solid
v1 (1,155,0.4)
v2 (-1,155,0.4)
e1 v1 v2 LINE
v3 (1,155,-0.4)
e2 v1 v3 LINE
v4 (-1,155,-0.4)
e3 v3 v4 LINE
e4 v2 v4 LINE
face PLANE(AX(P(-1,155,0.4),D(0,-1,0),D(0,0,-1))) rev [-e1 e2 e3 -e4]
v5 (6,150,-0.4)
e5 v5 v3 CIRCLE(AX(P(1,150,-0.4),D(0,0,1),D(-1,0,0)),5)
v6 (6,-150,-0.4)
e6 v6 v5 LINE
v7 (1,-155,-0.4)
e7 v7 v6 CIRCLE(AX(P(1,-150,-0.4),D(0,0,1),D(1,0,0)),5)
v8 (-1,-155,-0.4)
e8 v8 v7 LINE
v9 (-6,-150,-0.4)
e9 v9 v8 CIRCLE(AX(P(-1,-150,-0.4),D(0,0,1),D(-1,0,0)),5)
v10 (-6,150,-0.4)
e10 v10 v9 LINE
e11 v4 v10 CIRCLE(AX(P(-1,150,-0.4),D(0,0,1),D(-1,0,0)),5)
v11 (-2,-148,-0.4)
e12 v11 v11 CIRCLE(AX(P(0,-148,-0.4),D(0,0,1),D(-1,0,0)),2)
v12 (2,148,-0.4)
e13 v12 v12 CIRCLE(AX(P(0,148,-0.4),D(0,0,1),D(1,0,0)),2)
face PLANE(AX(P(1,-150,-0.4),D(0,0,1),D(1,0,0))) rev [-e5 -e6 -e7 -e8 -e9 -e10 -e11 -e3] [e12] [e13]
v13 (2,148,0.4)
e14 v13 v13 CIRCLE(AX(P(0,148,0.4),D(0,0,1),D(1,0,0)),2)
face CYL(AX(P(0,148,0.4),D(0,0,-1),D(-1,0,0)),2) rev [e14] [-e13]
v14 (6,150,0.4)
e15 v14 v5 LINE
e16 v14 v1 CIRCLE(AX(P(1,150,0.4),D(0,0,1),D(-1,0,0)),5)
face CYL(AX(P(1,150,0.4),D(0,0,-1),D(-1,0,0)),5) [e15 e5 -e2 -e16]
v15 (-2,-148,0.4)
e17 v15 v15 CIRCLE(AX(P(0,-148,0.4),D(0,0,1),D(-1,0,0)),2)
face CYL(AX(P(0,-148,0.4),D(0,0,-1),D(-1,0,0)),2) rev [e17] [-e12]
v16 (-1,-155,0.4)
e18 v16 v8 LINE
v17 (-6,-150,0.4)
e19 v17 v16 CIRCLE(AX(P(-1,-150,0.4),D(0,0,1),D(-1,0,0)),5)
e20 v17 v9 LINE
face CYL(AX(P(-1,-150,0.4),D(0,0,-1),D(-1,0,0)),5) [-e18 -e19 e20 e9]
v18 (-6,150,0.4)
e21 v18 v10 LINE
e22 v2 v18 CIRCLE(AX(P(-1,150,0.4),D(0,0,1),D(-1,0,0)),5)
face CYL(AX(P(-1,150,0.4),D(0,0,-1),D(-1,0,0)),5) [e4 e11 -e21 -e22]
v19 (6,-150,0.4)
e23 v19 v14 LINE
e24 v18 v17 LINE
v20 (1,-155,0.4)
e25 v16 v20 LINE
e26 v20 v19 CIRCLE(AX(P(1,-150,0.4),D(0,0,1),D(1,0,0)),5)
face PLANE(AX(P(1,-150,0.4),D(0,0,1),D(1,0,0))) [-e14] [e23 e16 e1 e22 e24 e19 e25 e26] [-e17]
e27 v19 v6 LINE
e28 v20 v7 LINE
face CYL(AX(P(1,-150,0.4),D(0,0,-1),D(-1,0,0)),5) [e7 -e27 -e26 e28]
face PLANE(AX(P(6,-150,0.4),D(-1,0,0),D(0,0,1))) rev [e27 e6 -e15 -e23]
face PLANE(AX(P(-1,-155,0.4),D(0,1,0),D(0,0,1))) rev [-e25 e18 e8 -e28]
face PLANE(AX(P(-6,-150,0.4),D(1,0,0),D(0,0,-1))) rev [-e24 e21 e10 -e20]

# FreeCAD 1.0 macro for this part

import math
import FreeCAD as App
import Part
import Sketcher

V = App.Vector

doc = App.newDocument("Part")
params = doc.addObject("Spreadsheet::Sheet", "Params")
for row, (alias, value) in enumerate([
    ("sketch1_diameter", "4 mm"),
    ("sketch1_radius", "5 mm"),
    ("sketch1_width", "2 mm"),
    ("sketch1_height", "300 mm"),
    ("pad1_length", "0.8 mm"),
], start=1):
    params.set(f"A{row}", alias)
    params.set(f"B{row}", "=" + value)
    params.setAlias(f"B{row}", alias)

body = doc.addObject("PartDesign::Body", "Body")

sketch1 = body.newObject("Sketcher::SketchObject", "Sketch")
sketch1.AttachmentSupport = (doc.getObject("XY_Plane"), [""])
sketch1.MapMode = "FlatFace"
sketch1.addGeometry([
    Part.LineSegment(V(-1, -155, 0), V(1, -155, 0)),
    Part.ArcOfCircle(Part.Circle(V(1, -150, 0), V(0, 0, 1), 5), math.radians(-90), math.radians(0)),
    Part.LineSegment(V(6, -150, 0), V(6, 150, 0)),
    Part.ArcOfCircle(Part.Circle(V(1, 150, 0), V(0, 0, 1), 5), math.radians(0), math.radians(90)),
    Part.LineSegment(V(1, 155, 0), V(-1, 155, 0)),
    Part.ArcOfCircle(Part.Circle(V(-1, 150, 0), V(0, 0, 1), 5), math.radians(90), math.radians(180)),
    Part.LineSegment(V(-6, 150, 0), V(-6, -150, 0)),
    Part.ArcOfCircle(Part.Circle(V(-1, -150, 0), V(0, 0, 1), 5), math.radians(180), math.radians(270)),
    Part.Circle(V(0, -148, 0), V(0, 0, 1), 2),
    Part.Circle(V(0, 148, 0), V(0, 0, 1), 2),
], False)
sketch1.addConstraint([
    Sketcher.Constraint("Tangent", 0, 2, 1, 1),
    Sketcher.Constraint("Tangent", 1, 2, 2, 1),
    Sketcher.Constraint("Tangent", 2, 2, 3, 1),
    Sketcher.Constraint("Tangent", 3, 2, 4, 1),
    Sketcher.Constraint("Tangent", 4, 2, 5, 1),
    Sketcher.Constraint("Tangent", 5, 2, 6, 1),
    Sketcher.Constraint("Tangent", 6, 2, 7, 1),
    Sketcher.Constraint("Tangent", 7, 2, 0, 1),
    Sketcher.Constraint("Horizontal", 0),
    Sketcher.Constraint("Vertical", 2),
    Sketcher.Constraint("Horizontal", 4),
    Sketcher.Constraint("Vertical", 6),
    Sketcher.Constraint("Equal", 1, 3),
    Sketcher.Constraint("Equal", 3, 5),
    Sketcher.Constraint("Equal", 5, 7),
    Sketcher.Constraint("Equal", 8, 9),
    Sketcher.Constraint("Symmetric", 1, 3, 5, 3, -1, 1),
    Sketcher.Constraint("Symmetric", 8, 3, 9, 3, -1, 1),
    Sketcher.Constraint("PointOnObject", 8, 3, -2),
    Sketcher.Constraint("Diameter", 8, 4.0),
    Sketcher.Constraint("Radius", 1, 5.0),
    Sketcher.Constraint("DistanceX", 0, 1, 0, 2, 2.0),
    Sketcher.Constraint("DistanceY", 2, 1, 2, 2, 300.0),
    Sketcher.Constraint("DistanceY", 8, 3, -1, 1, 148.0),
])
sketch1.setExpression("Constraints[19]", "Params.sketch1_diameter")
sketch1.setExpression("Constraints[20]", "Params.sketch1_radius")
sketch1.setExpression("Constraints[21]", "Params.sketch1_width")
sketch1.setExpression("Constraints[22]", "Params.sketch1_height")
pad1 = body.newObject("PartDesign::Pad", "Pad")
pad1.Profile = sketch1
pad1.setExpression("Length", "Params.pad1_length")
pad1.Midplane = True

doc.recompute()
